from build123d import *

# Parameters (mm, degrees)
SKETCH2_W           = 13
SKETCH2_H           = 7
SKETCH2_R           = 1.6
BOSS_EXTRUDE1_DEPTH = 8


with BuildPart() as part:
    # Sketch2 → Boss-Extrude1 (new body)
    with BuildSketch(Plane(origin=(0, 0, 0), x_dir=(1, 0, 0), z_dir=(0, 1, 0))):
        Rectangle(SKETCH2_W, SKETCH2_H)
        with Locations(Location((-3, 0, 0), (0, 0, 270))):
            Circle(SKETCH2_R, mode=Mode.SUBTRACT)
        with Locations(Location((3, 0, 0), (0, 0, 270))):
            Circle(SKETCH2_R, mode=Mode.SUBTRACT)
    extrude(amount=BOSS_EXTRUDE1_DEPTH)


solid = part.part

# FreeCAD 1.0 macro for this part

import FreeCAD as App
import Part
import Sketcher

V = App.Vector


def add_polygon(sketch, points):
    """Adds a closed chain of lines whose ends are joined by coincident constraints."""
    first, n = sketch.GeometryCount, len(points)
    for a, b in zip(points, points[1:] + points[:1]):
        sketch.addGeometry(Part.LineSegment(App.Vector(*a, 0), App.Vector(*b, 0)), False)
    for i in range(n):
        sketch.addConstraint(Sketcher.Constraint("Coincident", first + i, 2, first + (i + 1) % n, 1))

doc = App.newDocument("Part")
body = doc.addObject("PartDesign::Body", "Body")

# Sketch on XZ plane
sketch1 = body.newObject("Sketcher::SketchObject", "Sketch")
sketch1.AttachmentSupport = (doc.getObject("XZ_Plane"), [""])
sketch1.MapMode = "FlatFace"
add_polygon(sketch1, [(-6.5, -3.5), (-6.5, 3.5), (6.5, 3.5), (6.5, -3.5)])  # lines 0-3
sketch1.addGeometry(Part.Circle(V(-3, 0, 0), V(0, 0, 1), 1.6), False)  # 4
sketch1.addGeometry(Part.Circle(V(3, 0, 0), V(0, 0, 1), 1.6), False)  # 5
sketch1.addConstraint(Sketcher.Constraint("Vertical", 0))
sketch1.addConstraint(Sketcher.Constraint("Horizontal", 1))
sketch1.addConstraint(Sketcher.Constraint("Vertical", 2))
sketch1.addConstraint(Sketcher.Constraint("Horizontal", 3))
sketch1.addConstraint(Sketcher.Constraint("Equal", 4, 5))
sketch1.addConstraint(Sketcher.Constraint("Symmetric", 4, 3, 5, 3, -1, 1))
sketch1.addConstraint(Sketcher.Constraint("Symmetric", 0, 2, 2, 2, -1, 1))
sketch1.addConstraint(Sketcher.Constraint("PointOnObject", 4, 3, -1))
sketch1.addConstraint(Sketcher.Constraint("Diameter", 4, 3.2))
sketch1.addConstraint(Sketcher.Constraint("DistanceX", 1, 1, 1, 2, 13.0))
sketch1.addConstraint(Sketcher.Constraint("DistanceY", 0, 1, 0, 2, 7.0))
sketch1.addConstraint(Sketcher.Constraint("DistanceX", 4, 3, -1, 1, 3.0))
pad1 = body.newObject("PartDesign::Pad", "Pad")
pad1.Profile = sketch1
pad1.Length = 8
pad1.Reversed = True

doc.recompute()
